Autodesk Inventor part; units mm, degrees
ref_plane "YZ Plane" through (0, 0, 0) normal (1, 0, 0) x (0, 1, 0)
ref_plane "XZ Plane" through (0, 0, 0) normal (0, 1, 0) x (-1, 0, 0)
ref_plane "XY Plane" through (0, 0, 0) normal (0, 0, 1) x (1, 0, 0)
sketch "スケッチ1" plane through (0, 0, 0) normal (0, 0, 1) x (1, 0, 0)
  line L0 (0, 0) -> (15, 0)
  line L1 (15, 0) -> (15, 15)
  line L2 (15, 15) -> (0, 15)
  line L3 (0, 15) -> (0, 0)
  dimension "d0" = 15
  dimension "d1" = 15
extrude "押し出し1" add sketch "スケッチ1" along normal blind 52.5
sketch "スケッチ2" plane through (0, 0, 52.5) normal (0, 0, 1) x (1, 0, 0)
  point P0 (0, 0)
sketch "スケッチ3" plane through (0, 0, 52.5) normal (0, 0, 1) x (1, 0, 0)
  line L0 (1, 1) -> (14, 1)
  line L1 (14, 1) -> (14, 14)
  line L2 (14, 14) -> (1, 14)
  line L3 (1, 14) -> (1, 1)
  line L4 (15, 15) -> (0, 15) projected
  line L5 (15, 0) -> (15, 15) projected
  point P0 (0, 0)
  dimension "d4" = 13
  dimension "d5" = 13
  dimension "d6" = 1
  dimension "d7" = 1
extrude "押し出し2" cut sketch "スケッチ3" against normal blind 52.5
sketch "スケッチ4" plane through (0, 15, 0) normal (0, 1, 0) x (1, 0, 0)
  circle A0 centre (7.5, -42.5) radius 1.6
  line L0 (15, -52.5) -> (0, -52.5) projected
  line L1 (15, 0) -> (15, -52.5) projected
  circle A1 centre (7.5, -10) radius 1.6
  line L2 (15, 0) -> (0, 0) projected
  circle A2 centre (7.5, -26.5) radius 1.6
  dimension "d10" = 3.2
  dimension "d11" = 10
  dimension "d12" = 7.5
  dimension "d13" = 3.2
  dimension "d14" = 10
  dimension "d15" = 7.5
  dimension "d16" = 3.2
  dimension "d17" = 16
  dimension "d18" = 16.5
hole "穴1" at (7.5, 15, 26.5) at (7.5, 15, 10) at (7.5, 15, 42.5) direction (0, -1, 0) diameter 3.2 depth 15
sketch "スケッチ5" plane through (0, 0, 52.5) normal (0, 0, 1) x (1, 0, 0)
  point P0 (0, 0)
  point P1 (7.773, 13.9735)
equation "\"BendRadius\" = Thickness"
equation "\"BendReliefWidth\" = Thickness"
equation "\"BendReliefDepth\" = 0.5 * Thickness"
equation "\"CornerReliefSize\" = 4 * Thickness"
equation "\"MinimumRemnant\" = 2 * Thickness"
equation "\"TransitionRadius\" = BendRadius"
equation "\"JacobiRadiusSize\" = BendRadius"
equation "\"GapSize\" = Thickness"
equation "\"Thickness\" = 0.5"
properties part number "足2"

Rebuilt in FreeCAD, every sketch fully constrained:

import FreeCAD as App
import Part
import Sketcher

V = App.Vector

doc = App.newDocument("Part")
params = doc.addObject("Spreadsheet::Sheet", "Params")
for row, (alias, value) in enumerate([
    ("sketch1_width", "15 mm"),
    ("pad1_length", "52.5 mm"),
    ("sketch2_width", "13 mm"),
    ("pocket1_length", "52.5 mm"),
    ("sketch3_diameter", "3.2 mm"),
    ("hole_diameter", "3.2 mm"),
    ("hole_depth", "15 mm"),
], start=1):
    params.set(f"A{row}", alias)
    params.set(f"B{row}", "=" + value)
    params.setAlias(f"B{row}", alias)

body = doc.addObject("PartDesign::Body", "Body")

# Sketch on XY plane
sketch1 = body.newObject("Sketcher::SketchObject", "Sketch")
sketch1.AttachmentSupport = (doc.getObject("XY_Plane"), [""])
sketch1.MapMode = "FlatFace"
sketch1.addGeometry([
    Part.LineSegment(V(0, 15, 0), V(0, 0, 0)),
    Part.LineSegment(V(0, 0, 0), V(15, 0, 0)),
    Part.LineSegment(V(15, 0, 0), V(15, 15, 0)),
    Part.LineSegment(V(15, 15, 0), V(0, 15, 0)),
], False)
sketch1.addConstraint([
    Sketcher.Constraint("Coincident", 0, 2, 1, 1),
    Sketcher.Constraint("Coincident", 1, 2, 2, 1),
    Sketcher.Constraint("Coincident", 2, 2, 3, 1),
    Sketcher.Constraint("Coincident", 3, 2, 0, 1),
    Sketcher.Constraint("Vertical", 0),
    Sketcher.Constraint("Horizontal", 1),
    Sketcher.Constraint("Vertical", 2),
    Sketcher.Constraint("Horizontal", 3),
    Sketcher.Constraint("Coincident", 0, 2, -1, 1),
    Sketcher.Constraint("Equal", 3, 0),
    Sketcher.Constraint("DistanceX", 1, 1, 1, 2, 15.0),
])
sketch1.setExpression("Constraints[10]", "Params.sketch1_width")
pad1 = body.newObject("PartDesign::Pad", "Pad")
pad1.Profile = sketch1
pad1.setExpression("Length", "Params.pad1_length")

# Sketch on XY plane
sketch2 = body.newObject("Sketcher::SketchObject", "Sketch001")
sketch2.AttachmentSupport = (doc.getObject("XY_Plane"), [""])
sketch2.MapMode = "FlatFace"
sketch2.AttachmentOffset = App.Placement(V(0, 0, 52.5), App.Rotation())
sketch2.addGeometry([
    Part.LineSegment(V(1, 14, 0), V(1, 1, 0)),
    Part.LineSegment(V(1, 1, 0), V(14, 1, 0)),
    Part.LineSegment(V(14, 1, 0), V(14, 14, 0)),
    Part.LineSegment(V(14, 14, 0), V(1, 14, 0)),
], False)
sketch2.addConstraint([
    Sketcher.Constraint("Coincident", 0, 2, 1, 1),
    Sketcher.Constraint("Coincident", 1, 2, 2, 1),
    Sketcher.Constraint("Coincident", 2, 2, 3, 1),
    Sketcher.Constraint("Coincident", 3, 2, 0, 1),
    Sketcher.Constraint("Vertical", 0),
    Sketcher.Constraint("Horizontal", 1),
    Sketcher.Constraint("Vertical", 2),
    Sketcher.Constraint("Horizontal", 3),
    Sketcher.Constraint("Equal", 3, 0),
    Sketcher.Constraint("DistanceX", 1, 1, 1, 2, 13.0),
    Sketcher.Constraint("DistanceX", -1, 1, 0, 2, 1.0),
    Sketcher.Constraint("DistanceY", -1, 1, 0, 2, 1.0),
])
sketch2.setExpression("Constraints[9]", "Params.sketch2_width")
pocket1 = body.newObject("PartDesign::Pocket", "Pocket")
pocket1.Profile = sketch2
pocket1.setExpression("Length", "Params.pocket1_length")

# Sketch on XZ plane
sketch3 = body.newObject("Sketcher::SketchObject", "Sketch002")
sketch3.AttachmentSupport = (doc.getObject("XZ_Plane"), [""])
sketch3.MapMode = "FlatFace"
sketch3.AttachmentOffset = App.Placement(V(0, 0, -15), App.Rotation())
sketch3.addGeometry([
    Part.Circle(V(7.5, 26.5, 0), V(0, 0, 1), 1.6),
    Part.Circle(V(7.5, 10, 0), V(0, 0, 1), 1.6),
    Part.Circle(V(7.5, 42.5, 0), V(0, 0, 1), 1.6),
], False)
sketch3.addConstraint([
    Sketcher.Constraint("Equal", 0, 1),
    Sketcher.Constraint("Equal", 1, 2),
    Sketcher.Constraint("Vertical", 0, 3, 1, 3),
    Sketcher.Constraint("Vertical", 1, 3, 2, 3),
    Sketcher.Constraint("Diameter", 0, 3.2),
    Sketcher.Constraint("DistanceY", -1, 1, 1, 3, 10.0),
    Sketcher.Constraint("DistanceY", 0, 3, 2, 3, 16.0),
    Sketcher.Constraint("DistanceX", -1, 1, 0, 3, 7.5),
    Sketcher.Constraint("DistanceY", -1, 1, 0, 3, 26.5),
])
sketch3.setExpression("Constraints[4]", "Params.sketch3_diameter")
doc.recompute()
hole = body.newObject("PartDesign::Hole", "Hole")
hole.Profile = sketch3
hole.ThreadType = "None"
hole.setExpression("Diameter", "Params.hole_diameter")
hole.DepthType = "Dimension"
hole.setExpression("Depth", "Params.hole_depth")
hole.DrillPoint = "Flat"
hole.Reversed = True

doc.recompute()
